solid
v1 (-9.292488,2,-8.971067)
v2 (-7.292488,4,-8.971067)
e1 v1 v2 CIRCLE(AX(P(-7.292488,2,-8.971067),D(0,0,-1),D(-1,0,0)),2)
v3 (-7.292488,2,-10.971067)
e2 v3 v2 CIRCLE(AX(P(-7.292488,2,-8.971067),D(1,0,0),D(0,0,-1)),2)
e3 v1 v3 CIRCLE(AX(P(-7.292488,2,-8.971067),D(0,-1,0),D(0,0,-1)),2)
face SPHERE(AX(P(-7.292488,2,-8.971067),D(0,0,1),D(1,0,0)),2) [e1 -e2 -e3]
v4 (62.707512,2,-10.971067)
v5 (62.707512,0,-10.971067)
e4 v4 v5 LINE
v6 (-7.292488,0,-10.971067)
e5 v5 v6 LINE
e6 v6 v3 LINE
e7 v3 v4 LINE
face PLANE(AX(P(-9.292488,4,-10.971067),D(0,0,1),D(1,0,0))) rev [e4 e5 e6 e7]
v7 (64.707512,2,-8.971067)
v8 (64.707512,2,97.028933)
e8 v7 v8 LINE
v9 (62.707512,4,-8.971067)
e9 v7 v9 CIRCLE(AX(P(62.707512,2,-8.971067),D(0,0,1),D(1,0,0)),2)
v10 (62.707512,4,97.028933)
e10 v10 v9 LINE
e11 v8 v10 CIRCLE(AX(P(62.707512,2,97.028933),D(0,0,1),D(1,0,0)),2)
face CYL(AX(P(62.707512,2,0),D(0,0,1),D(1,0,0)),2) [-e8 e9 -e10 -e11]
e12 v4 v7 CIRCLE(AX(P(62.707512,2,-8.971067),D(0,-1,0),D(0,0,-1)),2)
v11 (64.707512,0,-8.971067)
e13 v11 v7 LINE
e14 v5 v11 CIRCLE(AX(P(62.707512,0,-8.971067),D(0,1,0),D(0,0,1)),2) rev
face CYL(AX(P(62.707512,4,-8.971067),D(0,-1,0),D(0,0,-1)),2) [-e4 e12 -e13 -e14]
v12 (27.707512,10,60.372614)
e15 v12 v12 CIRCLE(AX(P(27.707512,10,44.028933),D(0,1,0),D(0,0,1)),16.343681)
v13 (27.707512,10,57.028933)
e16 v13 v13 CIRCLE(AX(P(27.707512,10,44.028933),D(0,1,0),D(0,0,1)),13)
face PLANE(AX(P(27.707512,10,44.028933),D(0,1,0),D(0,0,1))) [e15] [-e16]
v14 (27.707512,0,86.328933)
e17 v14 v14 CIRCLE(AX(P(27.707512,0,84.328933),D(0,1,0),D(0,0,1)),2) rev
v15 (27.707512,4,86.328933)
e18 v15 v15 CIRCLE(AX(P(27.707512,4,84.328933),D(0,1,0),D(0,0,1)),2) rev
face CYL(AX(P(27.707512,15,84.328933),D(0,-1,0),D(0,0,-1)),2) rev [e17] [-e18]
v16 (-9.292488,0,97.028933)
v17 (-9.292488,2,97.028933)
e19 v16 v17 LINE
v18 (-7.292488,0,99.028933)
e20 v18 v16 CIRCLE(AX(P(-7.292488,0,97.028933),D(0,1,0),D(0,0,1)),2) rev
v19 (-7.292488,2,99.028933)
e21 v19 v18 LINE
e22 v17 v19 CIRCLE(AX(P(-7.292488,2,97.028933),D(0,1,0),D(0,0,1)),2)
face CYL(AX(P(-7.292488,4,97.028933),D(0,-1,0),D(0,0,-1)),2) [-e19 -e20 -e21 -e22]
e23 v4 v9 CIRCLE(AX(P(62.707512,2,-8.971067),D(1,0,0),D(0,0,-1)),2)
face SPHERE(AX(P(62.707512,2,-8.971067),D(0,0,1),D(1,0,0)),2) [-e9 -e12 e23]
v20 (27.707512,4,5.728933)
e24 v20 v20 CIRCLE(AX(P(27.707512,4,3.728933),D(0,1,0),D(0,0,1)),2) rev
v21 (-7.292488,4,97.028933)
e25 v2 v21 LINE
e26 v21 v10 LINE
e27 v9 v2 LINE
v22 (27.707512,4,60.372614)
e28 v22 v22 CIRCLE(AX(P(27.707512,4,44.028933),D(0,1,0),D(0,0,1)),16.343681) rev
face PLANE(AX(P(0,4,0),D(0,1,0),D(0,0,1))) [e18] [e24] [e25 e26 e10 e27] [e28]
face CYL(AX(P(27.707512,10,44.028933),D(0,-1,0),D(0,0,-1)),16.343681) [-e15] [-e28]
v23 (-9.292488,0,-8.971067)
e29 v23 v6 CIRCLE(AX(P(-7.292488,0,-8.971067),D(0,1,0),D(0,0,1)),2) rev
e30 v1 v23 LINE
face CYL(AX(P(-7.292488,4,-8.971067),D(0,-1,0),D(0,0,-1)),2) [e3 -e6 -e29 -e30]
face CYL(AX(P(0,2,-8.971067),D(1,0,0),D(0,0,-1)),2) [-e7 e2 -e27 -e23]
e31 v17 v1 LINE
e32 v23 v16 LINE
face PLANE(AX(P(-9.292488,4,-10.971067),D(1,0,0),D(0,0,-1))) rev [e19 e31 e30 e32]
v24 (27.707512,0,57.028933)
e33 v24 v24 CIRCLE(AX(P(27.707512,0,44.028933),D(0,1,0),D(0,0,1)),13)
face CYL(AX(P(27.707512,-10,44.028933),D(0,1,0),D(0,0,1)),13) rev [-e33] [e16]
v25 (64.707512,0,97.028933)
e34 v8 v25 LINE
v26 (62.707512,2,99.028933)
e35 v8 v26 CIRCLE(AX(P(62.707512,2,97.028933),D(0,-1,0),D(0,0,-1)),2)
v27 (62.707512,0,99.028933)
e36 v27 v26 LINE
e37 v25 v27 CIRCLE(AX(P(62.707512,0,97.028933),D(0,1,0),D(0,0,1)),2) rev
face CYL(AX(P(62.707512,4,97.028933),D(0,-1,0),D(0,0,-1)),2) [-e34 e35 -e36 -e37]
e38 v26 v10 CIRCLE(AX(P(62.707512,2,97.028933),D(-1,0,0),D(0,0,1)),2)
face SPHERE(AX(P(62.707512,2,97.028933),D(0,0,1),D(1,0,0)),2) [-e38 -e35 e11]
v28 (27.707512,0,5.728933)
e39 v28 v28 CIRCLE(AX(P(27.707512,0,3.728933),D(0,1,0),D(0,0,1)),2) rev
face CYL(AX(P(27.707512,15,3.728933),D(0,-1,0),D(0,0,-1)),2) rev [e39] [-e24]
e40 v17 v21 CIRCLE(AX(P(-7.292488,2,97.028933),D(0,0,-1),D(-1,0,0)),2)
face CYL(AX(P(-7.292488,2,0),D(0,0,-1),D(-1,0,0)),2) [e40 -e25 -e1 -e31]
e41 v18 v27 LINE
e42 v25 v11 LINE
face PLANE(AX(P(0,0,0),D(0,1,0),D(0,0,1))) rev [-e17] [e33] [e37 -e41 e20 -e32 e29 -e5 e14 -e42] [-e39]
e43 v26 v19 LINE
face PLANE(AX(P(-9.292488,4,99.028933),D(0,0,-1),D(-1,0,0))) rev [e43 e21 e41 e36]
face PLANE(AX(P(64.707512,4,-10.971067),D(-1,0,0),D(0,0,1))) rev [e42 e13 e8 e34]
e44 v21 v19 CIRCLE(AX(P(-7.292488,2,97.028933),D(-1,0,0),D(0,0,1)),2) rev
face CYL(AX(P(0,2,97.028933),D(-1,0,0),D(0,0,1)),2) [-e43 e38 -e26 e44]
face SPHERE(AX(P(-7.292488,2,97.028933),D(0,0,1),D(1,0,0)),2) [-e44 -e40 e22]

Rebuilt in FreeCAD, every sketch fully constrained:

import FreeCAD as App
import Part
import Sketcher
from FreeCAD import Vector


def edges_at(feature, points):
    """Names of the edges that pass closest to the given points."""
    edges = feature.Shape.Edges
    near = lambda p: min(range(len(edges)), key=lambda i: edges[i].distToShape(Part.Vertex(*p))[0])
    return sorted({f"Edge{near(p) + 1}" for p in points})


def add_polygon(sketch, points):
    """Adds a closed chain of lines whose ends are joined by coincident constraints."""
    first, n = sketch.GeometryCount, len(points)
    for a, b in zip(points, points[1:] + points[:1]):
        sketch.addGeometry(Part.LineSegment(App.Vector(*a, 0), App.Vector(*b, 0)), False)
    for i in range(n):
        sketch.addConstraint(Sketcher.Constraint("Coincident", first + i, 2, first + (i + 1) % n, 1))

doc = App.newDocument("Part")
params = doc.addObject("Spreadsheet::Sheet", "Params")
for row, (alias, value) in enumerate([
    ("sketch1_width", "74 mm"),
    ("sketch1_height", "110 mm"),
    ("pad1_length", "4 mm"),
    ("fillet_radius", "2 mm"),
    ("fillet2_radius", "2 mm"),
    ("fillet3_radius", "2 mm"),
    ("fillet4_radius", "2 mm"),
    ("sketch2_diameter", "26 mm"),
    ("sketch3_diameter", "4 mm"),
    ("sketch4_diameter", "26 mm"),
    ("pad2_length", "10 mm"),
], start=1):
    params.set(f"A{row}", alias)
    params.set(f"B{row}", "=" + value)
    params.setAlias(f"B{row}", alias)

body = doc.addObject("PartDesign::Body", "Body")

sketch1 = doc.addObject("Sketcher::SketchObject", "Sketch")
body.addObject(sketch1)
sketch1.AttachmentSupport = (doc.XZ_Plane, [""])
sketch1.MapMode = "FlatFace"
add_polygon(sketch1, [(-9, -11), (-9, 99), (65, 99), (65, -11)])
sketch1.addConstraint([
    Sketcher.Constraint("Vertical", 0),
    Sketcher.Constraint("Horizontal", 1),
    Sketcher.Constraint("Vertical", 2),
    Sketcher.Constraint("Horizontal", 3),
    Sketcher.Constraint("DistanceX", 1, 1, 1, 2, 74.0),
    Sketcher.Constraint("DistanceY", 0, 1, 0, 2, 110.0),
    Sketcher.Constraint("DistanceX", 0, 2, -1, 1, 9.292488),
    Sketcher.Constraint("DistanceY", -1, 1, 0, 2, 99.028933),
])
sketch1.setExpression("Constraints[8]", "Params.sketch1_width")
sketch1.setExpression("Constraints[9]", "Params.sketch1_height")
pad1 = doc.addObject("PartDesign::Pad", "Pad")
body.addObject(pad1)
pad1.Profile = sketch1
pad1.setExpression("Length", "Params.pad1_length")
pad1.Reversed = True
doc.recompute()

fillet = doc.addObject("PartDesign::Fillet", "Fillet")
body.addObject(fillet)
fillet.Base = (pad1, edges_at(pad1, [(27.708, 4, 99.029)]))
fillet.setExpression("Radius", "Params.fillet_radius")
doc.recompute()

fillet2 = doc.addObject("PartDesign::Fillet", "Fillet001")
body.addObject(fillet2)
fillet2.Base = (fillet, edges_at(fillet, [(64.708, 4, 43.029), (64.708, 1, 99.029), (64.708, 3.414, 98.443)]))
fillet2.setExpression("Radius", "Params.fillet2_radius")
doc.recompute()

fillet3 = doc.addObject("PartDesign::Fillet", "Fillet002")
body.addObject(fillet3)
fillet3.Base = (fillet2, edges_at(fillet2, [(64.708, 1, -10.971), (26.708, 4, -10.971), (64.122, 3.414, -10.971)]))
fillet3.setExpression("Radius", "Params.fillet3_radius")
doc.recompute()

fillet4 = doc.addObject("PartDesign::Fillet", "Fillet003")
body.addObject(fillet4)
fillet4.Base = (fillet3, edges_at(fillet3, [
    (-9.292, 1, 99.029),
    (-9.292, 3.414, 98.443),
    (-9.292, 1, -10.971),
    (-9.292, 4, 44.029),
    (-9.292, 3.414, -10.385),
]))
fillet4.setExpression("Radius", "Params.fillet4_radius")

sketch2 = doc.addObject("Sketcher::SketchObject", "Sketch001")
body.addObject(sketch2)
sketch2.AttachmentSupport = (doc.XZ_Plane, [""])
sketch2.MapMode = "FlatFace"
sketch2.addGeometry(Part.Circle(Vector(28, 44, 0), Vector(0, 0, 1), 13), False)
sketch2.addConstraint([
    Sketcher.Constraint("Diameter", 0, 26.0),
    Sketcher.Constraint("DistanceX", -1, 1, 0, 3, 27.707512),
    Sketcher.Constraint("DistanceY", -1, 1, 0, 3, 44.028933),
])
sketch2.setExpression("Constraints[0]", "Params.sketch2_diameter")
pocket1 = doc.addObject("PartDesign::Pocket", "Pocket")
body.addObject(pocket1)
pocket1.Profile = sketch2
pocket1.Type = "ThroughAll"
pocket1.Midplane = True

sketch3 = doc.addObject("Sketcher::SketchObject", "Sketch002")
body.addObject(sketch3)
sketch3.AttachmentSupport = (doc.XZ_Plane, [""])
sketch3.MapMode = "FlatFace"
sketch3.addGeometry([
    Part.Circle(Vector(27.7, 84.3, 0), Vector(0, 0, 1), 2),
    Part.Circle(Vector(27.7, 3.7, 0), Vector(0, 0, 1), 2),
], False)
sketch3.addConstraint([
    Sketcher.Constraint("Equal", 0, 1),
    Sketcher.Constraint("Vertical", 0, 3, 1, 3),
    Sketcher.Constraint("Diameter", 0, 4.0),
    Sketcher.Constraint("DistanceY", 1, 3, 0, 3, 80.6),
    Sketcher.Constraint("DistanceX", -1, 1, 0, 3, 27.707512),
    Sketcher.Constraint("DistanceY", -1, 1, 0, 3, 84.328933),
])
sketch3.setExpression("Constraints[2]", "Params.sketch3_diameter")
pocket2 = doc.addObject("PartDesign::Pocket", "Pocket001")
body.addObject(pocket2)
pocket2.Profile = sketch3
pocket2.Type = "ThroughAll"
pocket2.Midplane = True

sketch4 = doc.addObject("Sketcher::SketchObject", "Sketch003")
body.addObject(sketch4)
sketch4.AttachmentSupport = (doc.XZ_Plane, [""])
sketch4.MapMode = "FlatFace"
sketch4.addGeometry([
    Part.Circle(Vector(28, 44, 0), Vector(0, 0, 1), 16),
    Part.Circle(Vector(28, 44, 0), Vector(0, 0, 1), 13),
], False)
sketch4.addConstraint([
    Sketcher.Constraint("Coincident", 1, 3, 0, 3),
    Sketcher.Constraint("Diameter", 1, 26.0),
    Sketcher.Constraint("Diameter", 0, 32.687363),
    Sketcher.Constraint("DistanceX", -1, 1, 0, 3, 27.707512),
    Sketcher.Constraint("DistanceY", -1, 1, 0, 3, 44.028933),
])
sketch4.setExpression("Constraints[1]", "Params.sketch4_diameter")
pad2 = doc.addObject("PartDesign::Pad", "Pad001")
body.addObject(pad2)
pad2.Profile = sketch4
pad2.setExpression("Length", "Params.pad2_length")
pad2.Reversed = True

doc.recompute()
